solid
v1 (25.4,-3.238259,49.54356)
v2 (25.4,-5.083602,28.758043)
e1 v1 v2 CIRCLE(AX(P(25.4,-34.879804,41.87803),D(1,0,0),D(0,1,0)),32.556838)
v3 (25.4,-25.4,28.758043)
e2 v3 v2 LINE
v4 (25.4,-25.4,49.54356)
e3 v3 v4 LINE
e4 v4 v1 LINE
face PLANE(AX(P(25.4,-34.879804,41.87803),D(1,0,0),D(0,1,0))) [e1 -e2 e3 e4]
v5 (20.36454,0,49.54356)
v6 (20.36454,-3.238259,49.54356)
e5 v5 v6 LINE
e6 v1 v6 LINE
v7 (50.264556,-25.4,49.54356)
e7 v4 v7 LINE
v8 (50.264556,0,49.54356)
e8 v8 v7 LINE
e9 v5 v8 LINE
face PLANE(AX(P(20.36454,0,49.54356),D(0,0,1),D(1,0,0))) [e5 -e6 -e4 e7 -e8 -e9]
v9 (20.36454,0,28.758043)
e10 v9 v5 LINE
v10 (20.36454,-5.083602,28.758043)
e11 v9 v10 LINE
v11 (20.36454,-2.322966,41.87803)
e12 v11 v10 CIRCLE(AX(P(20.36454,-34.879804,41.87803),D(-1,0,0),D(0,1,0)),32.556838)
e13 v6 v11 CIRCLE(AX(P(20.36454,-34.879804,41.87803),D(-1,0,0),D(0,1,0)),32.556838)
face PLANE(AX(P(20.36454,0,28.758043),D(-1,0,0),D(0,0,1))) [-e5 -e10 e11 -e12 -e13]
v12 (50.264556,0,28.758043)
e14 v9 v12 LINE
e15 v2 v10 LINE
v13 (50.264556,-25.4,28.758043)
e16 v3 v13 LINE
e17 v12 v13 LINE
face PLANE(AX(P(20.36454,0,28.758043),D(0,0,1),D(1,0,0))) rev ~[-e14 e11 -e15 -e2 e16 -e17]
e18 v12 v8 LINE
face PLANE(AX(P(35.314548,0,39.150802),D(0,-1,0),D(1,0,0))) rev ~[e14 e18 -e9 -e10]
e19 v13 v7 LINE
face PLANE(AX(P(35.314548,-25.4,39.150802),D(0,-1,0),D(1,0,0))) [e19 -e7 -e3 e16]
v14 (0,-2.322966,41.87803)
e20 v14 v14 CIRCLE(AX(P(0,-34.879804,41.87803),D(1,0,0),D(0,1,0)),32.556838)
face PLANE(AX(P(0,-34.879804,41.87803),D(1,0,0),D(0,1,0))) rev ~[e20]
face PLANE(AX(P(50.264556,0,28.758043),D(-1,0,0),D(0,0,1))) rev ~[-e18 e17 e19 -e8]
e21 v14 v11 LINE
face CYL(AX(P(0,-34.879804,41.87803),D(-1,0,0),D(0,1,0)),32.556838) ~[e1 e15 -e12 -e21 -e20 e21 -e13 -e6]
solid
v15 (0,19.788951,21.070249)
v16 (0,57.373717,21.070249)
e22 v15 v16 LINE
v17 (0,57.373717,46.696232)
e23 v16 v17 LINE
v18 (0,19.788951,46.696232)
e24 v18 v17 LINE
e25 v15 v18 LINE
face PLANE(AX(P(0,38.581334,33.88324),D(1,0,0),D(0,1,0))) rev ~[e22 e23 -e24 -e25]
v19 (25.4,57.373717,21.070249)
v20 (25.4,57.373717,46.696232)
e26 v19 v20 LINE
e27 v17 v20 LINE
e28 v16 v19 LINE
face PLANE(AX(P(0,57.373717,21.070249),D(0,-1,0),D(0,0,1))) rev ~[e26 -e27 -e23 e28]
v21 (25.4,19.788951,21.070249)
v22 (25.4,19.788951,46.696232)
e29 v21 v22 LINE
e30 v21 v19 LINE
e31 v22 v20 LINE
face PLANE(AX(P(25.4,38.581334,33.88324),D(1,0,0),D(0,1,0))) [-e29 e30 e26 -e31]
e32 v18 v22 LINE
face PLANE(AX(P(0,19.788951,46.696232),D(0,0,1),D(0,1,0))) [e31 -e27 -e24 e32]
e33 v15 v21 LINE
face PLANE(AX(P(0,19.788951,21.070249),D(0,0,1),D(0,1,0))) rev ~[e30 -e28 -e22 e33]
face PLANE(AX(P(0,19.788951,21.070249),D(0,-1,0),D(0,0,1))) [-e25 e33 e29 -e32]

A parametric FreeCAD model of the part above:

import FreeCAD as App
import Part
import Sketcher
from FreeCAD import Vector
Q = App.Units.Quantity

doc = App.newDocument("Part")
body = doc.addObject("PartDesign::Body", "Body")

# Sketch on XZ plane
sketch1 = body.newObject("Sketcher::SketchObject", "Sketch")
sketch1.AttachmentSupport = (doc.getObject("XZ_Plane"), [""])
sketch1.MapMode = "FlatFace"
sketch1.addGeometry(Part.LineSegment(Vector(20, 50, 0), Vector(20, 29, 0)), False)
sketch1.addGeometry(Part.LineSegment(Vector(20, 29, 0), Vector(50, 29, 0)), False)
sketch1.addGeometry(Part.LineSegment(Vector(50, 29, 0), Vector(50, 50, 0)), False)
sketch1.addGeometry(Part.LineSegment(Vector(50, 50, 0), Vector(20, 50, 0)), False)
sketch1.addConstraint(Sketcher.Constraint("Coincident", 0, 2, 1, 1))
sketch1.addConstraint(Sketcher.Constraint("Coincident", 1, 2, 2, 1))
sketch1.addConstraint(Sketcher.Constraint("Coincident", 2, 2, 3, 1))
sketch1.addConstraint(Sketcher.Constraint("Coincident", 3, 2, 0, 1))
sketch1.addConstraint(Sketcher.Constraint("Vertical", 0))
sketch1.addConstraint(Sketcher.Constraint("Horizontal", 1))
sketch1.addConstraint(Sketcher.Constraint("Vertical", 2))
sketch1.addConstraint(Sketcher.Constraint("Horizontal", 3))
sketch1.addConstraint(Sketcher.Constraint("DistanceX", 1, 1, 1, 2, Q("29.900016 mm")))
sketch1.addConstraint(Sketcher.Constraint("DistanceY", 0, 2, 0, 1, Q("20.785517 mm")))
sketch1.addConstraint(Sketcher.Constraint("DistanceX", -1, 1, 0, 2, Q("20.36454 mm")))
sketch1.addConstraint(Sketcher.Constraint("DistanceY", -1, 1, 2, 2, Q("49.54356 mm")))
pad1 = body.newObject("PartDesign::Pad", "Pad")
pad1.Profile = sketch1
pad1.Length = Q("1 in")

# Sketch on YZ plane
sketch2 = body.newObject("Sketcher::SketchObject", "Sketch001")
sketch2.AttachmentSupport = (doc.getObject("YZ_Plane"), [""])
sketch2.MapMode = "FlatFace"
sketch2.addGeometry(Part.Circle(Vector(-35, 42, 0), Vector(0, 0, 1), 33), False)
sketch2.addConstraint(Sketcher.Constraint("Diameter", 0, Q("65.113676 mm")))
sketch2.addConstraint(Sketcher.Constraint("DistanceY", -1, 1, 0, 3, Q("41.87803 mm")))
sketch2.addConstraint(Sketcher.Constraint("DistanceX", 0, 3, -1, 1, Q("34.879804 mm")))
pad2 = body.newObject("PartDesign::Pad", "Pad001")
pad2.Profile = sketch2
pad2.Length = Q("1 in")
body2 = doc.addObject("PartDesign::Body", "Body001")

# Sketch on YZ plane
sketch3 = body2.newObject("Sketcher::SketchObject", "Sketch002")
sketch3.AttachmentSupport = (doc.getObject("YZ_Plane001"), [""])
sketch3.MapMode = "FlatFace"
sketch3.addGeometry(Part.LineSegment(Vector(20, 47, 0), Vector(20, 21, 0)), False)
sketch3.addGeometry(Part.LineSegment(Vector(20, 21, 0), Vector(57, 21, 0)), False)
sketch3.addGeometry(Part.LineSegment(Vector(57, 21, 0), Vector(57, 47, 0)), False)
sketch3.addGeometry(Part.LineSegment(Vector(57, 47, 0), Vector(20, 47, 0)), False)
sketch3.addConstraint(Sketcher.Constraint("Coincident", 0, 2, 1, 1))
sketch3.addConstraint(Sketcher.Constraint("Coincident", 1, 2, 2, 1))
sketch3.addConstraint(Sketcher.Constraint("Coincident", 2, 2, 3, 1))
sketch3.addConstraint(Sketcher.Constraint("Coincident", 3, 2, 0, 1))
sketch3.addConstraint(Sketcher.Constraint("Vertical", 0))
sketch3.addConstraint(Sketcher.Constraint("Horizontal", 1))
sketch3.addConstraint(Sketcher.Constraint("Vertical", 2))
sketch3.addConstraint(Sketcher.Constraint("Horizontal", 3))
sketch3.addConstraint(Sketcher.Constraint("DistanceX", 1, 1, 1, 2, Q("37.584766 mm")))
sketch3.addConstraint(Sketcher.Constraint("DistanceY", 0, 2, 0, 1, Q("25.625983 mm")))
sketch3.addConstraint(Sketcher.Constraint("DistanceX", -1, 1, 0, 2, Q("19.788951 mm")))
sketch3.addConstraint(Sketcher.Constraint("DistanceY", -1, 1, 0, 2, Q("21.070249 mm")))
pad3 = body2.newObject("PartDesign::Pad", "Pad002")
pad3.Profile = sketch3
pad3.Length = Q("1 in")

doc.recompute()
